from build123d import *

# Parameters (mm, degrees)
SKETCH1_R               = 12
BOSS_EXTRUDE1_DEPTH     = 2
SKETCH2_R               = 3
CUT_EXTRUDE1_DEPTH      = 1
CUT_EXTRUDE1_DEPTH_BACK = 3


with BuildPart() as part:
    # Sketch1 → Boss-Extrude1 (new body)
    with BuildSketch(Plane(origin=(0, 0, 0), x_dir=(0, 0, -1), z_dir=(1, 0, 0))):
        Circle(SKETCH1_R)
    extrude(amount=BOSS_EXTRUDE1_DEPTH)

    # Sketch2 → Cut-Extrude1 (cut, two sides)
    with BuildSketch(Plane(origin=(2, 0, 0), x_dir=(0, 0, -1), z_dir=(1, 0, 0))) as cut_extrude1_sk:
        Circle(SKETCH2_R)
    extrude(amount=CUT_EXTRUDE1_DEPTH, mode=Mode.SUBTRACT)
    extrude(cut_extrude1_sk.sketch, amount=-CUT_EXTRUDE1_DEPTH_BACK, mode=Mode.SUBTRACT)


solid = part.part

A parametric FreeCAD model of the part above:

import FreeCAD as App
import Part
import Sketcher
Q = App.Units.Quantity

doc = App.newDocument("Part")
body = doc.addObject("PartDesign::Body", "Body")

# Sketch on YZ plane
sketch1 = body.newObject("Sketcher::SketchObject", "Sketch")
sketch1.AttachmentSupport = (doc.getObject("YZ_Plane"), [""])
sketch1.MapMode = "FlatFace"
sketch1.addGeometry(Part.Circle(App.Vector(0, 0, 0), App.Vector(0, 0, 1), 12), False)
sketch1.addConstraint([
    Sketcher.Constraint("Coincident", 0, 3, -1, 1),
    Sketcher.Constraint("Diameter", 0, Q("24 mm")),
])
pad1 = body.newObject("PartDesign::Pad", "Pad")
pad1.Profile = sketch1
pad1.Length = 2

# Sketch on YZ plane
sketch2 = body.newObject("Sketcher::SketchObject", "Sketch001")
sketch2.AttachmentSupport = (doc.getObject("YZ_Plane"), [""])
sketch2.MapMode = "FlatFace"
sketch2.AttachmentOffset = App.Placement(App.Vector(0, 0, 2), App.Rotation())
sketch2.addGeometry(Part.Circle(App.Vector(0, 0, 0), App.Vector(0, 0, 1), 3), False)
sketch2.addConstraint([
    Sketcher.Constraint("Coincident", 0, 3, -1, 1),
    Sketcher.Constraint("Diameter", 0, Q("6 mm")),
])
pocket1 = body.newObject("PartDesign::Pocket", "Pocket")
pocket1.Profile = sketch2
pocket1.Type = "ThroughAll"
pocket1.Midplane = True

doc.recompute()
